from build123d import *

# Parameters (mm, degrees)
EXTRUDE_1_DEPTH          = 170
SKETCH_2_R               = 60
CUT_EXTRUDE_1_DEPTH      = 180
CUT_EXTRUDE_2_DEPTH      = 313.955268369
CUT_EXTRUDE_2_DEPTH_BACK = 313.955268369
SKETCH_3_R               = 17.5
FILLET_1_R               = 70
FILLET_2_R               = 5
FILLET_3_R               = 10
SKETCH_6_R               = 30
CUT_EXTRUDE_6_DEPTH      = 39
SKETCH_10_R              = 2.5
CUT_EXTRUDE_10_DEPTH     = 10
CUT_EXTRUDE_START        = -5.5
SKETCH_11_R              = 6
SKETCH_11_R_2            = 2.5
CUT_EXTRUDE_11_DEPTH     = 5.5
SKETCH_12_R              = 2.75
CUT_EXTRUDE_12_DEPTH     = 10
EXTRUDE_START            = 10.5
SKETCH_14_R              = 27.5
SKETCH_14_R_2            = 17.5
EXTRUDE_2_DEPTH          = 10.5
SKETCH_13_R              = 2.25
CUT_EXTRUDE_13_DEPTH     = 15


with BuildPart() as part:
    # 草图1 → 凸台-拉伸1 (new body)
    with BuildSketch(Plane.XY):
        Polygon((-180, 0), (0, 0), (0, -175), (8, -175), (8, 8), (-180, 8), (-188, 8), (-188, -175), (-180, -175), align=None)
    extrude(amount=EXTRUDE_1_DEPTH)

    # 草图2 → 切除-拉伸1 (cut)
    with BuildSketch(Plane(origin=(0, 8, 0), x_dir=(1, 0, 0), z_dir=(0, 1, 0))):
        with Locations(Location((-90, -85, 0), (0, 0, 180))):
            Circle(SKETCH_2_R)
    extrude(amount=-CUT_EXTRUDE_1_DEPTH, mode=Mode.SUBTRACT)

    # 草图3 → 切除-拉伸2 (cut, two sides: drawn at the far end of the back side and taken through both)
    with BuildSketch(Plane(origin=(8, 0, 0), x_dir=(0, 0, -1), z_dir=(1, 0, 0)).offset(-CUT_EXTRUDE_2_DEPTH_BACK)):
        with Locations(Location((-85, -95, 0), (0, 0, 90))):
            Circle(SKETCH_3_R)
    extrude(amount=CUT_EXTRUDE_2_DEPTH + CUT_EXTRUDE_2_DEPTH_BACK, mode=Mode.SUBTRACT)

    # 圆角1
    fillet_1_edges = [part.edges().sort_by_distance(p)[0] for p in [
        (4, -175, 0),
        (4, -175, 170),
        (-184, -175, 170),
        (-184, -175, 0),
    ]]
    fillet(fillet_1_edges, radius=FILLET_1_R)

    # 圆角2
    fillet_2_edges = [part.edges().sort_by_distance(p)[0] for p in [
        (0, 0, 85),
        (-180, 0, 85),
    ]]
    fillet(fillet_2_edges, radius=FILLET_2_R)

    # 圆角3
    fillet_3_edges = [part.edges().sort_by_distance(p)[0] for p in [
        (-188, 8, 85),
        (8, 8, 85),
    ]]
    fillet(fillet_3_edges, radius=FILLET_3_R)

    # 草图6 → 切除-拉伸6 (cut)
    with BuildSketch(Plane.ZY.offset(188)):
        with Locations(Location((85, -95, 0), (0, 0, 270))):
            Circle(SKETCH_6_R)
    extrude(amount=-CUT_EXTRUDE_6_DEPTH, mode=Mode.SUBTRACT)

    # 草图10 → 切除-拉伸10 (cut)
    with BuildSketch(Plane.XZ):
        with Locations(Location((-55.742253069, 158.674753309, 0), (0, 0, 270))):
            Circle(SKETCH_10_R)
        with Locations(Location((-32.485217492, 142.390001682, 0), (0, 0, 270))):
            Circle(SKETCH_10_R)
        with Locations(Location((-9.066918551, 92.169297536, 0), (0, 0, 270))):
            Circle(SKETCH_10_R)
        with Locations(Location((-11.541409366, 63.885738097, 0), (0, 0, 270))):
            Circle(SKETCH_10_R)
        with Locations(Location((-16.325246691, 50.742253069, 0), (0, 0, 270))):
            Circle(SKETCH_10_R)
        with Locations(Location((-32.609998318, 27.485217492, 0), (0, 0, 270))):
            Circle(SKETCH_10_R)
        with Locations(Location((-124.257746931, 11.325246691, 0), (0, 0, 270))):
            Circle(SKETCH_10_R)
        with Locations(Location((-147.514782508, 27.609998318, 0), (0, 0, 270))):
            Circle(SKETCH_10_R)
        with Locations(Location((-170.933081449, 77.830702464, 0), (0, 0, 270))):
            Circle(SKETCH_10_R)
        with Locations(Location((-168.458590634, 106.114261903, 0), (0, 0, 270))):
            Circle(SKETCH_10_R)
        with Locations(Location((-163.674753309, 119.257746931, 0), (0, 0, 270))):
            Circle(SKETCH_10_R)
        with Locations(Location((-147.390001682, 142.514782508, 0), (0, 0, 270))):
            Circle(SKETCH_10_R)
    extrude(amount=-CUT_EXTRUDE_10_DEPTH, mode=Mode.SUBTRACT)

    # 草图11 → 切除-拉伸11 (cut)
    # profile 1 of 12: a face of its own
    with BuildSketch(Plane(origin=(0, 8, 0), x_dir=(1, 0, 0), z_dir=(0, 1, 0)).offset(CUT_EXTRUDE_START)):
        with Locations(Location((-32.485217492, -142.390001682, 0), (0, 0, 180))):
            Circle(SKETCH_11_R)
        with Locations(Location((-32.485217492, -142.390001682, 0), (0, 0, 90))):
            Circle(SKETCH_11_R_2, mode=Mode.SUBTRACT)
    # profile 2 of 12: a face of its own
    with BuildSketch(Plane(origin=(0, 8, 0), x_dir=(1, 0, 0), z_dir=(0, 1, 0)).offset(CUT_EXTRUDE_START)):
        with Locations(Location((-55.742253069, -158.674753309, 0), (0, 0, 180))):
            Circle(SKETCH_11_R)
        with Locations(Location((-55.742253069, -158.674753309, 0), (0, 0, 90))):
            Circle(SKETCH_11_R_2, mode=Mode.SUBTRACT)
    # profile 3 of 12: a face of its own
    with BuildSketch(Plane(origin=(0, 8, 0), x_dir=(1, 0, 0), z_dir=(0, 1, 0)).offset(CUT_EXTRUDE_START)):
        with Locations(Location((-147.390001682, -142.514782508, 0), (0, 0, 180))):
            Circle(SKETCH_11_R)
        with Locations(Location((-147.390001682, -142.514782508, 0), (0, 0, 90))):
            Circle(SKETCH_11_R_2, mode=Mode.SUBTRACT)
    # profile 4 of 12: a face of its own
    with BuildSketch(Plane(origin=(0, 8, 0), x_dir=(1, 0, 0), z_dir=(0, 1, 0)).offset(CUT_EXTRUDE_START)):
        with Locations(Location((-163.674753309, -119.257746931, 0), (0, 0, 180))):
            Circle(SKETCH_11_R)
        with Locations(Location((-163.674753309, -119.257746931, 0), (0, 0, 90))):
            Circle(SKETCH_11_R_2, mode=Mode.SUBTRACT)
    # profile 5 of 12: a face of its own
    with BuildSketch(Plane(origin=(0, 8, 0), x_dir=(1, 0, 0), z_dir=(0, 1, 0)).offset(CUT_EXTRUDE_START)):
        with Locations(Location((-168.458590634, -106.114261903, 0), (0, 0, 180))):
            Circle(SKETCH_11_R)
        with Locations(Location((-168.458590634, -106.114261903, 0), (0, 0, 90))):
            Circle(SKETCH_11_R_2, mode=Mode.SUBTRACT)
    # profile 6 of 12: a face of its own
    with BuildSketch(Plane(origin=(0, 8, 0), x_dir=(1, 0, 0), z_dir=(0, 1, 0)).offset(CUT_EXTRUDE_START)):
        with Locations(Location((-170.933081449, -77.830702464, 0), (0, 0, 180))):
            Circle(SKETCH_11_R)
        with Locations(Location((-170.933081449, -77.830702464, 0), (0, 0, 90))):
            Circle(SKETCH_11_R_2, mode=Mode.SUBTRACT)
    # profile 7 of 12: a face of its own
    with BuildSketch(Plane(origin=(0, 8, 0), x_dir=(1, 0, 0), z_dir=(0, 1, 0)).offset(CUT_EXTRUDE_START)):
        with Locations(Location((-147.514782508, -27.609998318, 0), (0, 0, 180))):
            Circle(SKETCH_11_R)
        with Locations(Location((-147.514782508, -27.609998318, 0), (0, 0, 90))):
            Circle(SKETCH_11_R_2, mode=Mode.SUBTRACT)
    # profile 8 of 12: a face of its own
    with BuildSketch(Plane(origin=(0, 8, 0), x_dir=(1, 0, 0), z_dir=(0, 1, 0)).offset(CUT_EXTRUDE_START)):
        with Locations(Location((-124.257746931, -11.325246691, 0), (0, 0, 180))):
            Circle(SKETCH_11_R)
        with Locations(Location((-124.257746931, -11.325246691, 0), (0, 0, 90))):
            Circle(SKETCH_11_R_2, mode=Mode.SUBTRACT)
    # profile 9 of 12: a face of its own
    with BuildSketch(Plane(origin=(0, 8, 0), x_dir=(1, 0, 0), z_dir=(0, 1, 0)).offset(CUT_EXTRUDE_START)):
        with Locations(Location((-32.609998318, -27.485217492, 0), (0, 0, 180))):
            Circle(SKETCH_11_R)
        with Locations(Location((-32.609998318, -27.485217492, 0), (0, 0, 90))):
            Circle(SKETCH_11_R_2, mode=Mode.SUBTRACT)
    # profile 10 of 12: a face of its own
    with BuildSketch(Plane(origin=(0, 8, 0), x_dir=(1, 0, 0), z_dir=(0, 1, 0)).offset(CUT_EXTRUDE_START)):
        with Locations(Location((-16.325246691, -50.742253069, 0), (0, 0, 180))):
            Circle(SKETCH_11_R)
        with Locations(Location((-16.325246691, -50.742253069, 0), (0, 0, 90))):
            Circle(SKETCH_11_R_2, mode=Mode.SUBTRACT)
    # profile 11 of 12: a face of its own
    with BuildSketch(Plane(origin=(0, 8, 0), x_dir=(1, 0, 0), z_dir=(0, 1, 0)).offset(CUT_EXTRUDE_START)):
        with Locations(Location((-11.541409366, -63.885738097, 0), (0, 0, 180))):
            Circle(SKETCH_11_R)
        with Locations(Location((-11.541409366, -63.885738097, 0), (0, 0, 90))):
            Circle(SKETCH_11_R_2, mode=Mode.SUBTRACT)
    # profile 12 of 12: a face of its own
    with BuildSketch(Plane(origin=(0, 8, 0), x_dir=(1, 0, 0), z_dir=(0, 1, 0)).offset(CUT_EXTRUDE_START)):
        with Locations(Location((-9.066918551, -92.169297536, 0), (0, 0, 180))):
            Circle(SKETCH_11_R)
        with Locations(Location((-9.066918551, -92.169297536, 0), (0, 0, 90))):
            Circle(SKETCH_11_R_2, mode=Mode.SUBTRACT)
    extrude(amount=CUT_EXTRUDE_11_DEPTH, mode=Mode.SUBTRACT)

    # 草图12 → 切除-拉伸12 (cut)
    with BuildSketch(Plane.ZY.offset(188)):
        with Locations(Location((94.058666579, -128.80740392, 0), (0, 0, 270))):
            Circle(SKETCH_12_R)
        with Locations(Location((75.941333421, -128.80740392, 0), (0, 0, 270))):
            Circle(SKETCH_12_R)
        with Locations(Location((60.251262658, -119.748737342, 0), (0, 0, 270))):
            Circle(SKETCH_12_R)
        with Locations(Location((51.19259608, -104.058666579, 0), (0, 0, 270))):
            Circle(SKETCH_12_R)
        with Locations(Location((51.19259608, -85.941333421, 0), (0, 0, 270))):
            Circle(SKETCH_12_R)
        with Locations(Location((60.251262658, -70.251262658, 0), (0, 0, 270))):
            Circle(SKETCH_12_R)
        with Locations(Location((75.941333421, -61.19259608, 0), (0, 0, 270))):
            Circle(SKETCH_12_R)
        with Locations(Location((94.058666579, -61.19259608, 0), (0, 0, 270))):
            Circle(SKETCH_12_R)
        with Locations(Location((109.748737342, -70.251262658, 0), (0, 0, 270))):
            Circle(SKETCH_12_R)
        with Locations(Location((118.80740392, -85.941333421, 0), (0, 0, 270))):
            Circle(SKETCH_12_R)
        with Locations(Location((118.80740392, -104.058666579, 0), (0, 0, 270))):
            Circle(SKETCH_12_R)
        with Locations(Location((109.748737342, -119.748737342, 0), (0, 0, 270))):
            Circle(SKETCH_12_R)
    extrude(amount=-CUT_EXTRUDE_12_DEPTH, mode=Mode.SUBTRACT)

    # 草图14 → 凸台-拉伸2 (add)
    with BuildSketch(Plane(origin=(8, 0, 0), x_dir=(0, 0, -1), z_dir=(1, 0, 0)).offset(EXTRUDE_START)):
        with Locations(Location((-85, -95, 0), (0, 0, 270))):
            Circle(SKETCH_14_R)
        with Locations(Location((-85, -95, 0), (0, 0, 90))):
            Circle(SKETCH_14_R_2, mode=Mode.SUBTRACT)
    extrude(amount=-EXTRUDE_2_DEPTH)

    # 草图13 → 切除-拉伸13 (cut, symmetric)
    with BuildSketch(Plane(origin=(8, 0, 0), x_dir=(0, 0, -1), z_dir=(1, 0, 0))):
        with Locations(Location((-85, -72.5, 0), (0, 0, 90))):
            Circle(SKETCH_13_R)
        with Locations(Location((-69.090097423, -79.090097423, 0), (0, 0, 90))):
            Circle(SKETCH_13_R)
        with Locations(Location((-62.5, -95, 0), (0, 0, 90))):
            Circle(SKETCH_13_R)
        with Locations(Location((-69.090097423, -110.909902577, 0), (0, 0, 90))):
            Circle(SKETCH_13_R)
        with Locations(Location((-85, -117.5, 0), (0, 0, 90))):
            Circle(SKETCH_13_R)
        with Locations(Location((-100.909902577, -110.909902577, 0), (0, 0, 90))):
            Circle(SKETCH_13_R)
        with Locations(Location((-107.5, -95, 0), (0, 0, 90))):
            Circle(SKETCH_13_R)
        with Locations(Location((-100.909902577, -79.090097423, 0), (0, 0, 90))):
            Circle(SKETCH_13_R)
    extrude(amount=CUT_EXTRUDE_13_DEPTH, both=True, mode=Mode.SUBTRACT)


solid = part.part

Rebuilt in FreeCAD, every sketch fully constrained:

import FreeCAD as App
import Part
import Sketcher

V = App.Vector


def edges_at(feature, points):
    """Names of the edges that pass closest to the given points."""
    edges = feature.Shape.Edges
    near = lambda p: min(range(len(edges)), key=lambda i: edges[i].distToShape(Part.Vertex(*p))[0])
    return sorted({f"Edge{near(p) + 1}" for p in points})

doc = App.newDocument("Part")
params = doc.addObject("Spreadsheet::Sheet", "Params")
for row, (alias, value) in enumerate([
    ("sketch1_width", "180 mm"),
    ("sketch1_width2", "8 mm"),
    ("sketch1_height", "175 mm"),
    ("sketch1_height2", "183 mm"),
    ("pad1_length", "170 mm"),
    ("sketch2_diameter", "120 mm"),
    ("pocket1_length", "180 mm"),
    ("sketch3_diameter", "35 mm"),
    ("fillet_radius", "70 mm"),
    ("fillet2_radius", "5 mm"),
    ("fillet3_radius", "10 mm"),
    ("sketch4_diameter", "60 mm"),
    ("pocket3_length", "39 mm"),
    ("sketch5_diameter", "5 mm"),
    ("pocket4_length", "10 mm"),
    ("sketch6_diameter", "12 mm"),
    ("sketch6_diameter2", "5 mm"),
    ("pocket5_length", "5.5 mm"),
    ("sketch7_diameter", "5.5 mm"),
    ("pocket6_length", "10 mm"),
    ("sketch8_diameter", "55 mm"),
    ("sketch8_diameter2", "35 mm"),
    ("pad2_length", "10.5 mm"),
    ("sketch9_diameter", "4.5 mm"),
    ("pocket7_length", "30 mm"),
], start=1):
    params.set(f"A{row}", alias)
    params.set(f"B{row}", "=" + value)
    params.setAlias(f"B{row}", alias)

body = doc.addObject("PartDesign::Body", "Body")

sketch1 = body.newObject("Sketcher::SketchObject", "Sketch")
sketch1.AttachmentSupport = (doc.getObject("XY_Plane"), [""])
sketch1.MapMode = "FlatFace"
sketch1.addGeometry(Part.LineSegment(V(-180, 0, 0), V(0, 0, 0)), False)
sketch1.addGeometry(Part.LineSegment(V(0, 0, 0), V(0, -175, 0)), False)
sketch1.addGeometry(Part.LineSegment(V(0, -175, 0), V(8, -175, 0)), False)
sketch1.addGeometry(Part.LineSegment(V(8, -175, 0), V(8, 8, 0)), False)
sketch1.addGeometry(Part.LineSegment(V(8, 8, 0), V(-188, 8, 0)), False)
sketch1.addGeometry(Part.LineSegment(V(-188, 8, 0), V(-188, -175, 0)), False)
sketch1.addGeometry(Part.LineSegment(V(-188, -175, 0), V(-180, -175, 0)), False)
sketch1.addGeometry(Part.LineSegment(V(-180, -175, 0), V(-180, 0, 0)), False)
sketch1.addConstraint(Sketcher.Constraint("Coincident", 0, 2, 1, 1))
sketch1.addConstraint(Sketcher.Constraint("Coincident", 1, 2, 2, 1))
sketch1.addConstraint(Sketcher.Constraint("Coincident", 2, 2, 3, 1))
sketch1.addConstraint(Sketcher.Constraint("Coincident", 3, 2, 4, 1))
sketch1.addConstraint(Sketcher.Constraint("Coincident", 4, 2, 5, 1))
sketch1.addConstraint(Sketcher.Constraint("Coincident", 5, 2, 6, 1))
sketch1.addConstraint(Sketcher.Constraint("Coincident", 6, 2, 7, 1))
sketch1.addConstraint(Sketcher.Constraint("Coincident", 7, 2, 0, 1))
sketch1.addConstraint(Sketcher.Constraint("Horizontal", 0))
sketch1.addConstraint(Sketcher.Constraint("Vertical", 1))
sketch1.addConstraint(Sketcher.Constraint("Horizontal", 2))
sketch1.addConstraint(Sketcher.Constraint("Vertical", 3))
sketch1.addConstraint(Sketcher.Constraint("Horizontal", 4))
sketch1.addConstraint(Sketcher.Constraint("Vertical", 5))
sketch1.addConstraint(Sketcher.Constraint("Horizontal", 6))
sketch1.addConstraint(Sketcher.Constraint("Vertical", 7))
sketch1.addConstraint(Sketcher.Constraint("Coincident", 0, 2, -1, 1))
sketch1.addConstraint(Sketcher.Constraint("Horizontal", 2, 2, 5, 2))
sketch1.addConstraint(Sketcher.Constraint("Equal", 2, 6))
sketch1.addConstraint(Sketcher.Constraint("DistanceX", 0, 1, 0, 2, 180.0))
sketch1.addConstraint(Sketcher.Constraint("DistanceX", 2, 1, 2, 2, 8.0))
sketch1.addConstraint(Sketcher.Constraint("DistanceY", 1, 2, 1, 1, 175.0))
sketch1.addConstraint(Sketcher.Constraint("DistanceY", 3, 1, 3, 2, 183.0))
sketch1.setExpression("Constraints[19]", "Params.sketch1_width")
sketch1.setExpression("Constraints[20]", "Params.sketch1_width2")
sketch1.setExpression("Constraints[21]", "Params.sketch1_height")
sketch1.setExpression("Constraints[22]", "Params.sketch1_height2")
pad1 = body.newObject("PartDesign::Pad", "Pad")
pad1.Profile = sketch1
pad1.setExpression("Length", "Params.pad1_length")

sketch2 = body.newObject("Sketcher::SketchObject", "Sketch001")
sketch2.AttachmentSupport = (doc.getObject("XZ_Plane"), [""])
sketch2.MapMode = "FlatFace"
sketch2.AttachmentOffset = App.Placement(V(0, 0, -8), App.Rotation())
sketch2.addGeometry(Part.Circle(V(-90, 85, 0), V(0, 0, 1), 60), False)
sketch2.addConstraint(Sketcher.Constraint("Diameter", 0, 120.0))
sketch2.addConstraint(Sketcher.Constraint("DistanceX", 0, 3, -1, 1, 90.0))
sketch2.addConstraint(Sketcher.Constraint("DistanceY", -1, 1, 0, 3, 85.0))
sketch2.setExpression("Constraints[0]", "Params.sketch2_diameter")
pocket1 = body.newObject("PartDesign::Pocket", "Pocket")
pocket1.Profile = sketch2
pocket1.setExpression("Length", "Params.pocket1_length")
pocket1.Reversed = True

sketch3 = body.newObject("Sketcher::SketchObject", "Sketch002")
sketch3.AttachmentSupport = (doc.getObject("YZ_Plane"), [""])
sketch3.MapMode = "FlatFace"
sketch3.AttachmentOffset = App.Placement(V(0, 0, 8), App.Rotation())
sketch3.addGeometry(Part.Circle(V(-95, 85, 0), V(0, 0, 1), 18), False)
sketch3.addConstraint(Sketcher.Constraint("Diameter", 0, 35.0))
sketch3.addConstraint(Sketcher.Constraint("DistanceX", 0, 3, -1, 1, 95.0))
sketch3.addConstraint(Sketcher.Constraint("DistanceY", -1, 1, 0, 3, 85.0))
sketch3.setExpression("Constraints[0]", "Params.sketch3_diameter")
pocket2 = body.newObject("PartDesign::Pocket", "Pocket001")
pocket2.Profile = sketch3
pocket2.Type = "ThroughAll"
pocket2.Midplane = True
doc.recompute()

fillet = body.newObject("PartDesign::Fillet", "Fillet")
fillet.Base = (pocket2, edges_at(pocket2, [
    (4, -175, 0),
    (4, -175, 170),
    (-184, -175, 170),
    (-184, -175, 0),
]))
fillet.setExpression("Radius", "Params.fillet_radius")
doc.recompute()

fillet2 = body.newObject("PartDesign::Fillet", "Fillet001")
fillet2.Base = (fillet, edges_at(fillet, [(0, 0, 85), (-180, 0, 85)]))
fillet2.setExpression("Radius", "Params.fillet2_radius")
doc.recompute()

fillet3 = body.newObject("PartDesign::Fillet", "Fillet002")
fillet3.Base = (fillet2, edges_at(fillet2, [(-188, 8, 85), (8, 8, 85)]))
fillet3.setExpression("Radius", "Params.fillet3_radius")

sketch4 = body.newObject("Sketcher::SketchObject", "Sketch003")
sketch4.AttachmentSupport = (doc.getObject("YZ_Plane"), [""])
sketch4.MapMode = "FlatFace"
sketch4.AttachmentOffset = App.Placement(V(0, 0, -188), App.Rotation())
sketch4.addGeometry(Part.Circle(V(-95, 85, 0), V(0, 0, 1), 30), False)
sketch4.addConstraint(Sketcher.Constraint("Diameter", 0, 60.0))
sketch4.addConstraint(Sketcher.Constraint("DistanceX", 0, 3, -1, 1, 95.0))
sketch4.addConstraint(Sketcher.Constraint("DistanceY", -1, 1, 0, 3, 85.0))
sketch4.setExpression("Constraints[0]", "Params.sketch4_diameter")
pocket3 = body.newObject("PartDesign::Pocket", "Pocket002")
pocket3.Profile = sketch4
pocket3.setExpression("Length", "Params.pocket3_length")
pocket3.Reversed = True

sketch5 = body.newObject("Sketcher::SketchObject", "Sketch004")
sketch5.AttachmentSupport = (doc.getObject("XZ_Plane"), [""])
sketch5.MapMode = "FlatFace"
sketch5.addGeometry(Part.Circle(V(-55.7, 158.7, 0), V(0, 0, 1), 2.5), False)
sketch5.addGeometry(Part.Circle(V(-32.5, 142.4, 0), V(0, 0, 1), 2.5), False)
sketch5.addGeometry(Part.Circle(V(-9.1, 92.2, 0), V(0, 0, 1), 2.5), False)
sketch5.addGeometry(Part.Circle(V(-11.5, 63.9, 0), V(0, 0, 1), 2.5), False)
sketch5.addGeometry(Part.Circle(V(-16.3, 50.7, 0), V(0, 0, 1), 2.5), False)
sketch5.addGeometry(Part.Circle(V(-32.6, 27.5, 0), V(0, 0, 1), 2.5), False)
sketch5.addGeometry(Part.Circle(V(-124.3, 11.3, 0), V(0, 0, 1), 2.5), False)
sketch5.addGeometry(Part.Circle(V(-147.5, 27.6, 0), V(0, 0, 1), 2.5), False)
sketch5.addGeometry(Part.Circle(V(-170.9, 77.8, 0), V(0, 0, 1), 2.5), False)
sketch5.addGeometry(Part.Circle(V(-168.5, 106.1, 0), V(0, 0, 1), 2.5), False)
sketch5.addGeometry(Part.Circle(V(-163.7, 119.3, 0), V(0, 0, 1), 2.5), False)
sketch5.addGeometry(Part.Circle(V(-147.4, 142.5, 0), V(0, 0, 1), 2.5), False)
sketch5.addConstraint(Sketcher.Constraint("Equal", 0, 1))
sketch5.addConstraint(Sketcher.Constraint("Equal", 1, 2))
sketch5.addConstraint(Sketcher.Constraint("Equal", 2, 3))
sketch5.addConstraint(Sketcher.Constraint("Equal", 3, 4))
sketch5.addConstraint(Sketcher.Constraint("Equal", 4, 5))
sketch5.addConstraint(Sketcher.Constraint("Equal", 5, 6))
sketch5.addConstraint(Sketcher.Constraint("Equal", 6, 7))
sketch5.addConstraint(Sketcher.Constraint("Equal", 7, 8))
sketch5.addConstraint(Sketcher.Constraint("Equal", 8, 9))
sketch5.addConstraint(Sketcher.Constraint("Equal", 9, 10))
sketch5.addConstraint(Sketcher.Constraint("Equal", 10, 11))
sketch5.addConstraint(Sketcher.Constraint("Diameter", 0, 5.0))
sketch5.addConstraint(Sketcher.Constraint("DistanceY", -1, 1, 1, 3, 142.390002))
sketch5.addConstraint(Sketcher.Constraint("DistanceX", 5, 3, -1, 1, 32.609998))
sketch5.addConstraint(Sketcher.Constraint("DistanceY", -1, 1, 7, 3, 27.609998))
sketch5.addConstraint(Sketcher.Constraint("DistanceX", 11, 3, -1, 1, 147.390002))
sketch5.addConstraint(Sketcher.Constraint("DistanceX", 1, 3, 2, 3, 23.418299))
sketch5.addConstraint(Sketcher.Constraint("DistanceY", 4, 3, 0, 3, 107.9325))
sketch5.addConstraint(Sketcher.Constraint("DistanceX", 6, 3, 4, 3, 107.9325))
sketch5.addConstraint(Sketcher.Constraint("DistanceY", 7, 3, 2, 3, 64.559299))
sketch5.addConstraint(Sketcher.Constraint("DistanceX", 8, 3, 7, 3, 23.418299))
sketch5.addConstraint(Sketcher.Constraint("DistanceY", 8, 3, 1, 3, 64.559299))
sketch5.addConstraint(Sketcher.Constraint("DistanceY", 6, 3, 10, 3, 107.9325))
sketch5.addConstraint(Sketcher.Constraint("DistanceX", 10, 3, 0, 3, 107.9325))
sketch5.addConstraint(Sketcher.Constraint("DistanceX", 2, 3, -1, 1, 9.066919))
sketch5.addConstraint(Sketcher.Constraint("DistanceX", 3, 3, -1, 1, 11.541409))
sketch5.addConstraint(Sketcher.Constraint("DistanceY", -1, 1, 3, 3, 63.885738))
sketch5.addConstraint(Sketcher.Constraint("DistanceX", 8, 3, -1, 1, 170.933081))
sketch5.addConstraint(Sketcher.Constraint("DistanceX", 9, 3, -1, 1, 168.458591))
sketch5.addConstraint(Sketcher.Constraint("DistanceY", -1, 1, 9, 3, 106.114262))
sketch5.addConstraint(Sketcher.Constraint("DistanceY", 1, 3, 0, 3, 16.284752))
sketch5.addConstraint(Sketcher.Constraint("DistanceX", 4, 3, 2, 3, 7.258328))
sketch5.addConstraint(Sketcher.Constraint("DistanceY", 5, 3, 3, 3, 36.400521))
sketch5.addConstraint(Sketcher.Constraint("DistanceY", 6, 3, 5, 3, 16.159971))
sketch5.addConstraint(Sketcher.Constraint("DistanceX", 8, 3, 0, 3, 115.190828))
sketch5.addConstraint(Sketcher.Constraint("DistanceY", 9, 3, 11, 3, 36.400521))
sketch5.setExpression("Constraints[11]", "Params.sketch5_diameter")
pocket4 = body.newObject("PartDesign::Pocket", "Pocket003")
pocket4.Profile = sketch5
pocket4.setExpression("Length", "Params.pocket4_length")

sketch6 = body.newObject("Sketcher::SketchObject", "Sketch005")
sketch6.AttachmentSupport = (doc.getObject("XZ_Plane"), [""])
sketch6.MapMode = "FlatFace"
sketch6.AttachmentOffset = App.Placement(V(0, 0, -2.5), App.Rotation())
sketch6.addGeometry(Part.Circle(V(-32.5, 142.4, 0), V(0, 0, 1), 6), False)
sketch6.addGeometry(Part.Circle(V(-32.5, 142.4, 0), V(0, 0, 1), 2.5), False)
sketch6.addGeometry(Part.Circle(V(-55.7, 158.7, 0), V(0, 0, 1), 6), False)
sketch6.addGeometry(Part.Circle(V(-55.7, 158.7, 0), V(0, 0, 1), 2.5), False)
sketch6.addGeometry(Part.Circle(V(-147.4, 142.5, 0), V(0, 0, 1), 6), False)
sketch6.addGeometry(Part.Circle(V(-147.4, 142.5, 0), V(0, 0, 1), 2.5), False)
sketch6.addGeometry(Part.Circle(V(-163.7, 119.3, 0), V(0, 0, 1), 6), False)
sketch6.addGeometry(Part.Circle(V(-163.7, 119.3, 0), V(0, 0, 1), 2.5), False)
sketch6.addGeometry(Part.Circle(V(-168.5, 106.1, 0), V(0, 0, 1), 6), False)
sketch6.addGeometry(Part.Circle(V(-168.5, 106.1, 0), V(0, 0, 1), 2.5), False)
sketch6.addGeometry(Part.Circle(V(-170.9, 77.8, 0), V(0, 0, 1), 6), False)
sketch6.addGeometry(Part.Circle(V(-170.9, 77.8, 0), V(0, 0, 1), 2.5), False)
sketch6.addGeometry(Part.Circle(V(-147.5, 27.6, 0), V(0, 0, 1), 6), False)
sketch6.addGeometry(Part.Circle(V(-147.5, 27.6, 0), V(0, 0, 1), 2.5), False)
sketch6.addGeometry(Part.Circle(V(-124.3, 11.3, 0), V(0, 0, 1), 6), False)
sketch6.addGeometry(Part.Circle(V(-124.3, 11.3, 0), V(0, 0, 1), 2.5), False)
sketch6.addGeometry(Part.Circle(V(-32.6, 27.5, 0), V(0, 0, 1), 6), False)
sketch6.addGeometry(Part.Circle(V(-32.6, 27.5, 0), V(0, 0, 1), 2.5), False)
sketch6.addGeometry(Part.Circle(V(-16.3, 50.7, 0), V(0, 0, 1), 6), False)
sketch6.addGeometry(Part.Circle(V(-16.3, 50.7, 0), V(0, 0, 1), 2.5), False)
sketch6.addGeometry(Part.Circle(V(-11.5, 63.9, 0), V(0, 0, 1), 6), False)
sketch6.addGeometry(Part.Circle(V(-11.5, 63.9, 0), V(0, 0, 1), 2.5), False)
sketch6.addGeometry(Part.Circle(V(-9.1, 92.2, 0), V(0, 0, 1), 6), False)
sketch6.addGeometry(Part.Circle(V(-9.1, 92.2, 0), V(0, 0, 1), 2.5), False)
sketch6.addConstraint(Sketcher.Constraint("Coincident", 1, 3, 0, 3))
sketch6.addConstraint(Sketcher.Constraint("Coincident", 3, 3, 2, 3))
sketch6.addConstraint(Sketcher.Constraint("Coincident", 5, 3, 4, 3))
sketch6.addConstraint(Sketcher.Constraint("Coincident", 7, 3, 6, 3))
sketch6.addConstraint(Sketcher.Constraint("Coincident", 9, 3, 8, 3))
sketch6.addConstraint(Sketcher.Constraint("Coincident", 11, 3, 10, 3))
sketch6.addConstraint(Sketcher.Constraint("Coincident", 13, 3, 12, 3))
sketch6.addConstraint(Sketcher.Constraint("Coincident", 15, 3, 14, 3))
sketch6.addConstraint(Sketcher.Constraint("Coincident", 17, 3, 16, 3))
sketch6.addConstraint(Sketcher.Constraint("Coincident", 19, 3, 18, 3))
sketch6.addConstraint(Sketcher.Constraint("Coincident", 21, 3, 20, 3))
sketch6.addConstraint(Sketcher.Constraint("Coincident", 23, 3, 22, 3))
sketch6.addConstraint(Sketcher.Constraint("Equal", 0, 2))
sketch6.addConstraint(Sketcher.Constraint("Equal", 1, 3))
sketch6.addConstraint(Sketcher.Constraint("Equal", 2, 4))
sketch6.addConstraint(Sketcher.Constraint("Equal", 3, 5))
sketch6.addConstraint(Sketcher.Constraint("Equal", 4, 6))
sketch6.addConstraint(Sketcher.Constraint("Equal", 5, 7))
sketch6.addConstraint(Sketcher.Constraint("Equal", 6, 8))
sketch6.addConstraint(Sketcher.Constraint("Equal", 7, 9))
sketch6.addConstraint(Sketcher.Constraint("Equal", 8, 10))
sketch6.addConstraint(Sketcher.Constraint("Equal", 9, 11))
sketch6.addConstraint(Sketcher.Constraint("Equal", 10, 12))
sketch6.addConstraint(Sketcher.Constraint("Equal", 11, 13))
sketch6.addConstraint(Sketcher.Constraint("Equal", 12, 14))
sketch6.addConstraint(Sketcher.Constraint("Equal", 13, 15))
sketch6.addConstraint(Sketcher.Constraint("Equal", 14, 16))
sketch6.addConstraint(Sketcher.Constraint("Equal", 15, 17))
sketch6.addConstraint(Sketcher.Constraint("Equal", 16, 18))
sketch6.addConstraint(Sketcher.Constraint("Equal", 17, 19))
sketch6.addConstraint(Sketcher.Constraint("Equal", 18, 20))
sketch6.addConstraint(Sketcher.Constraint("Equal", 19, 21))
sketch6.addConstraint(Sketcher.Constraint("Equal", 20, 22))
sketch6.addConstraint(Sketcher.Constraint("Equal", 21, 23))
sketch6.addConstraint(Sketcher.Constraint("Diameter", 0, 12.0))
sketch6.addConstraint(Sketcher.Constraint("Diameter", 1, 5.0))
sketch6.addConstraint(Sketcher.Constraint("DistanceY", -1, 1, 0, 3, 142.390002))
sketch6.addConstraint(Sketcher.Constraint("DistanceX", 4, 3, -1, 1, 147.390002))
sketch6.addConstraint(Sketcher.Constraint("DistanceY", -1, 1, 12, 3, 27.609998))
sketch6.addConstraint(Sketcher.Constraint("DistanceX", 16, 3, -1, 1, 32.609998))
sketch6.addConstraint(Sketcher.Constraint("DistanceX", 6, 3, 2, 3, 107.9325))
sketch6.addConstraint(Sketcher.Constraint("DistanceX", 10, 3, 12, 3, 23.418299))
sketch6.addConstraint(Sketcher.Constraint("DistanceX", 14, 3, 18, 3, 107.9325))
sketch6.addConstraint(Sketcher.Constraint("DistanceX", 0, 3, 22, 3, 23.418299))
sketch6.addConstraint(Sketcher.Constraint("DistanceX", 8, 3, -1, 1, 168.458591))
sketch6.addConstraint(Sketcher.Constraint("DistanceY", -1, 1, 8, 3, 106.114262))
sketch6.addConstraint(Sketcher.Constraint("DistanceX", 10, 3, -1, 1, 170.933081))
sketch6.addConstraint(Sketcher.Constraint("DistanceX", 20, 3, -1, 1, 11.541409))
sketch6.addConstraint(Sketcher.Constraint("DistanceY", -1, 1, 20, 3, 63.885738))
sketch6.addConstraint(Sketcher.Constraint("DistanceX", 22, 3, -1, 1, 9.066919))
sketch6.addConstraint(Sketcher.Constraint("DistanceY", 0, 3, 2, 3, 16.284752))
sketch6.addConstraint(Sketcher.Constraint("DistanceX", 4, 3, 2, 3, 91.647749))
sketch6.addConstraint(Sketcher.Constraint("DistanceY", 4, 3, 2, 3, 16.159971))
sketch6.addConstraint(Sketcher.Constraint("DistanceY", 10, 3, 8, 3, 28.283559))
sketch6.addConstraint(Sketcher.Constraint("DistanceY", 12, 3, 6, 3, 91.647749))
sketch6.addConstraint(Sketcher.Constraint("DistanceY", 14, 3, 12, 3, 16.284752))
sketch6.addConstraint(Sketcher.Constraint("DistanceX", 14, 3, 16, 3, 91.647749))
sketch6.addConstraint(Sketcher.Constraint("DistanceY", 14, 3, 16, 3, 16.159971))
sketch6.addConstraint(Sketcher.Constraint("DistanceY", 18, 3, 0, 3, 91.647749))
sketch6.addConstraint(Sketcher.Constraint("DistanceY", 20, 3, 22, 3, 28.283559))
sketch6.setExpression("Constraints[34]", "Params.sketch6_diameter")
sketch6.setExpression("Constraints[35]", "Params.sketch6_diameter2")
pocket5 = body.newObject("PartDesign::Pocket", "Pocket004")
pocket5.Profile = sketch6
pocket5.setExpression("Length", "Params.pocket5_length")

sketch7 = body.newObject("Sketcher::SketchObject", "Sketch006")
sketch7.AttachmentSupport = (doc.getObject("YZ_Plane"), [""])
sketch7.MapMode = "FlatFace"
sketch7.AttachmentOffset = App.Placement(V(0, 0, -188), App.Rotation())
sketch7.addGeometry(Part.Circle(V(-128.8, 94.1, 0), V(0, 0, 1), 2.8), False)
sketch7.addGeometry(Part.Circle(V(-128.8, 75.9, 0), V(0, 0, 1), 2.8), False)
sketch7.addGeometry(Part.Circle(V(-119.7, 60.3, 0), V(0, 0, 1), 2.8), False)
sketch7.addGeometry(Part.Circle(V(-104.1, 51.2, 0), V(0, 0, 1), 2.8), False)
sketch7.addGeometry(Part.Circle(V(-85.9, 51.2, 0), V(0, 0, 1), 2.8), False)
sketch7.addGeometry(Part.Circle(V(-70.3, 60.3, 0), V(0, 0, 1), 2.8), False)
sketch7.addGeometry(Part.Circle(V(-61.2, 75.9, 0), V(0, 0, 1), 2.8), False)
sketch7.addGeometry(Part.Circle(V(-61.2, 94.1, 0), V(0, 0, 1), 2.8), False)
sketch7.addGeometry(Part.Circle(V(-70.3, 109.7, 0), V(0, 0, 1), 2.8), False)
sketch7.addGeometry(Part.Circle(V(-85.9, 118.8, 0), V(0, 0, 1), 2.8), False)
sketch7.addGeometry(Part.Circle(V(-104.1, 118.8, 0), V(0, 0, 1), 2.8), False)
sketch7.addGeometry(Part.Circle(V(-119.7, 109.7, 0), V(0, 0, 1), 2.8), False)
sketch7.addConstraint(Sketcher.Constraint("Equal", 0, 1))
sketch7.addConstraint(Sketcher.Constraint("Equal", 1, 2))
sketch7.addConstraint(Sketcher.Constraint("Equal", 2, 3))
sketch7.addConstraint(Sketcher.Constraint("Equal", 3, 4))
sketch7.addConstraint(Sketcher.Constraint("Equal", 4, 5))
sketch7.addConstraint(Sketcher.Constraint("Equal", 5, 6))
sketch7.addConstraint(Sketcher.Constraint("Equal", 6, 7))
sketch7.addConstraint(Sketcher.Constraint("Equal", 7, 8))
sketch7.addConstraint(Sketcher.Constraint("Equal", 8, 9))
sketch7.addConstraint(Sketcher.Constraint("Equal", 9, 10))
sketch7.addConstraint(Sketcher.Constraint("Equal", 10, 11))
sketch7.addConstraint(Sketcher.Constraint("Horizontal", 3, 3, 4, 3))
sketch7.addConstraint(Sketcher.Constraint("Horizontal", 2, 3, 5, 3))
sketch7.addConstraint(Sketcher.Constraint("Horizontal", 1, 3, 6, 3))
sketch7.addConstraint(Sketcher.Constraint("Horizontal", 0, 3, 7, 3))
sketch7.addConstraint(Sketcher.Constraint("Horizontal", 9, 3, 10, 3))
sketch7.addConstraint(Sketcher.Constraint("Horizontal", 8, 3, 11, 3))
sketch7.addConstraint(Sketcher.Constraint("Vertical", 0, 3, 1, 3))
sketch7.addConstraint(Sketcher.Constraint("Vertical", 6, 3, 7, 3))
sketch7.addConstraint(Sketcher.Constraint("Vertical", 5, 3, 8, 3))
sketch7.addConstraint(Sketcher.Constraint("Vertical", 4, 3, 9, 3))
sketch7.addConstraint(Sketcher.Constraint("Vertical", 3, 3, 10, 3))
sketch7.addConstraint(Sketcher.Constraint("Vertical", 2, 3, 11, 3))
sketch7.addConstraint(Sketcher.Constraint("Diameter", 0, 5.5))
sketch7.addConstraint(Sketcher.Constraint("DistanceY", 2, 3, 1, 3, 15.690071))
sketch7.addConstraint(Sketcher.Constraint("DistanceX", 2, 3, 3, 3, 15.690071))
sketch7.addConstraint(Sketcher.Constraint("DistanceY", 3, 3, 0, 3, 42.86607))
sketch7.addConstraint(Sketcher.Constraint("DistanceX", 1, 3, 4, 3, 42.86607))
sketch7.addConstraint(Sketcher.Constraint("DistanceX", 4, 3, 5, 3, 15.690071))
sketch7.addConstraint(Sketcher.Constraint("DistanceX", 3, 3, 6, 3, 42.86607))
sketch7.addConstraint(Sketcher.Constraint("DistanceY", 7, 3, 8, 3, 15.690071))
sketch7.addConstraint(Sketcher.Constraint("DistanceY", 6, 3, 9, 3, 42.86607))
sketch7.addConstraint(Sketcher.Constraint("DistanceX", 0, 3, -1, 1, 128.807404))
sketch7.addConstraint(Sketcher.Constraint("DistanceY", -1, 1, 0, 3, 94.058667))
sketch7.addConstraint(Sketcher.Constraint("DistanceY", -1, 1, 1, 3, 75.941333))
sketch7.addConstraint(Sketcher.Constraint("DistanceX", 2, 3, -1, 1, 119.748737))
sketch7.setExpression("Constraints[23]", "Params.sketch7_diameter")
pocket6 = body.newObject("PartDesign::Pocket", "Pocket005")
pocket6.Profile = sketch7
pocket6.setExpression("Length", "Params.pocket6_length")
pocket6.Reversed = True

sketch8 = body.newObject("Sketcher::SketchObject", "Sketch007")
sketch8.AttachmentSupport = (doc.getObject("YZ_Plane"), [""])
sketch8.MapMode = "FlatFace"
sketch8.AttachmentOffset = App.Placement(V(0, 0, 18.5), App.Rotation())
sketch8.addGeometry(Part.Circle(V(-95, 85, 0), V(0, 0, 1), 28), False)
sketch8.addGeometry(Part.Circle(V(-95, 85, 0), V(0, 0, 1), 18), False)
sketch8.addConstraint(Sketcher.Constraint("Coincident", 1, 3, 0, 3))
sketch8.addConstraint(Sketcher.Constraint("Diameter", 0, 55.0))
sketch8.addConstraint(Sketcher.Constraint("Diameter", 1, 35.0))
sketch8.addConstraint(Sketcher.Constraint("DistanceX", 0, 3, -1, 1, 95.0))
sketch8.addConstraint(Sketcher.Constraint("DistanceY", -1, 1, 0, 3, 85.0))
sketch8.setExpression("Constraints[1]", "Params.sketch8_diameter")
sketch8.setExpression("Constraints[2]", "Params.sketch8_diameter2")
pad2 = body.newObject("PartDesign::Pad", "Pad001")
pad2.Profile = sketch8
pad2.setExpression("Length", "Params.pad2_length")
pad2.Reversed = True

sketch9 = body.newObject("Sketcher::SketchObject", "Sketch008")
sketch9.AttachmentSupport = (doc.getObject("YZ_Plane"), [""])
sketch9.MapMode = "FlatFace"
sketch9.AttachmentOffset = App.Placement(V(0, 0, 8), App.Rotation())
sketch9.addGeometry(Part.Circle(V(-72.5, 85, 0), V(0, 0, 1), 2.2), False)
sketch9.addGeometry(Part.Circle(V(-79.1, 69.1, 0), V(0, 0, 1), 2.2), False)
sketch9.addGeometry(Part.Circle(V(-95, 62.5, 0), V(0, 0, 1), 2.2), False)
sketch9.addGeometry(Part.Circle(V(-110.9, 69.1, 0), V(0, 0, 1), 2.2), False)
sketch9.addGeometry(Part.Circle(V(-117.5, 85, 0), V(0, 0, 1), 2.2), False)
sketch9.addGeometry(Part.Circle(V(-110.9, 100.9, 0), V(0, 0, 1), 2.2), False)
sketch9.addGeometry(Part.Circle(V(-95, 107.5, 0), V(0, 0, 1), 2.2), False)
sketch9.addGeometry(Part.Circle(V(-79.1, 100.9, 0), V(0, 0, 1), 2.2), False)
sketch9.addConstraint(Sketcher.Constraint("Equal", 0, 1))
sketch9.addConstraint(Sketcher.Constraint("Equal", 1, 2))
sketch9.addConstraint(Sketcher.Constraint("Equal", 2, 3))
sketch9.addConstraint(Sketcher.Constraint("Equal", 3, 4))
sketch9.addConstraint(Sketcher.Constraint("Equal", 4, 5))
sketch9.addConstraint(Sketcher.Constraint("Equal", 5, 6))
sketch9.addConstraint(Sketcher.Constraint("Equal", 6, 7))
sketch9.addConstraint(Sketcher.Constraint("Horizontal", 1, 3, 3, 3))
sketch9.addConstraint(Sketcher.Constraint("Horizontal", 0, 3, 4, 3))
sketch9.addConstraint(Sketcher.Constraint("Horizontal", 5, 3, 7, 3))
sketch9.addConstraint(Sketcher.Constraint("Vertical", 3, 3, 5, 3))
sketch9.addConstraint(Sketcher.Constraint("Vertical", 2, 3, 6, 3))
sketch9.addConstraint(Sketcher.Constraint("Vertical", 1, 3, 7, 3))
sketch9.addConstraint(Sketcher.Constraint("Diameter", 0, 4.5))
sketch9.addConstraint(Sketcher.Constraint("DistanceY", -1, 1, 0, 3, 85.0))
sketch9.addConstraint(Sketcher.Constraint("DistanceX", 2, 3, -1, 1, 95.0))
sketch9.addConstraint(Sketcher.Constraint("DistanceX", 4, 3, 0, 3, 45.0))
sketch9.addConstraint(Sketcher.Constraint("DistanceX", 0, 3, -1, 1, 72.5))
sketch9.addConstraint(Sketcher.Constraint("DistanceY", -1, 1, 2, 3, 62.5))
sketch9.addConstraint(Sketcher.Constraint("DistanceY", -1, 1, 6, 3, 107.5))
sketch9.addConstraint(Sketcher.Constraint("DistanceX", 1, 3, -1, 1, 79.090097))
sketch9.addConstraint(Sketcher.Constraint("DistanceY", -1, 1, 1, 3, 69.090097))
sketch9.addConstraint(Sketcher.Constraint("DistanceX", 3, 3, -1, 1, 110.909903))
sketch9.addConstraint(Sketcher.Constraint("DistanceY", -1, 1, 5, 3, 100.909903))
sketch9.setExpression("Constraints[13]", "Params.sketch9_diameter")
pocket7 = body.newObject("PartDesign::Pocket", "Pocket006")
pocket7.Profile = sketch9
pocket7.setExpression("Length", "Params.pocket7_length")
pocket7.Midplane = True

doc.recompute()
